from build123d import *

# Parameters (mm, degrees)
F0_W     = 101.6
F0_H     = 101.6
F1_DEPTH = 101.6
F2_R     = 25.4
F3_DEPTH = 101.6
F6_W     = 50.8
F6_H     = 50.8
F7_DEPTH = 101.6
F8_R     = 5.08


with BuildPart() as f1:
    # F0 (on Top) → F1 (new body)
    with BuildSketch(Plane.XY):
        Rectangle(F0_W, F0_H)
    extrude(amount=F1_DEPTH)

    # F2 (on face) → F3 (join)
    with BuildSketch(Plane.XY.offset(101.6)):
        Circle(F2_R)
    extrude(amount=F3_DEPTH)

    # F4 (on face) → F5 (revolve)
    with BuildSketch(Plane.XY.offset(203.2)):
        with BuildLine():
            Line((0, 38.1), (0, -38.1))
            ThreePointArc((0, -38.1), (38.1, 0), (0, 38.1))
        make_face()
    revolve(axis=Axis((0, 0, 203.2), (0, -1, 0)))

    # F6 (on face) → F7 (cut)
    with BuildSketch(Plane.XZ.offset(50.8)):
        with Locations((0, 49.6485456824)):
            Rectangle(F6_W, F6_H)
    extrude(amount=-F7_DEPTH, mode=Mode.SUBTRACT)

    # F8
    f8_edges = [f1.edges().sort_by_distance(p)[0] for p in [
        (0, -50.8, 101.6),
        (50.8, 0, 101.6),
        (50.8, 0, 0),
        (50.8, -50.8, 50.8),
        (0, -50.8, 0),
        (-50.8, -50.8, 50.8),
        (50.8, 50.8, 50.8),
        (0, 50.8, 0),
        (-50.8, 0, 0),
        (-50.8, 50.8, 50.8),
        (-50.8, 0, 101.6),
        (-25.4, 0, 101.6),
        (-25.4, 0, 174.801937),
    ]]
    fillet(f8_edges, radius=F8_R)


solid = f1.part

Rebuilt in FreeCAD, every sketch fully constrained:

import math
import FreeCAD as App
import Part
import Sketcher
from FreeCAD import Vector
Q = App.Units.Quantity


def edges_at(feature, points):
    """Names of the edges that pass closest to the given points."""
    edges = feature.Shape.Edges
    near = lambda p: min(range(len(edges)), key=lambda i: edges[i].distToShape(Part.Vertex(*p))[0])
    return sorted({f"Edge{near(p) + 1}" for p in points})


def add_polygon(sketch, points):
    """Adds a closed chain of lines whose ends are joined by coincident constraints."""
    first, n = sketch.GeometryCount, len(points)
    for a, b in zip(points, points[1:] + points[:1]):
        sketch.addGeometry(Part.LineSegment(App.Vector(*a, 0), App.Vector(*b, 0)), False)
    for i in range(n):
        sketch.addConstraint(Sketcher.Constraint("Coincident", first + i, 2, first + (i + 1) % n, 1))

doc = App.newDocument("Part")
body = doc.addObject("PartDesign::Body", "Body")

# Sketch on XY plane
sketch1 = body.newObject("Sketcher::SketchObject", "Sketch")
sketch1.AttachmentSupport = (doc.getObject("XY_Plane"), [""])
sketch1.MapMode = "FlatFace"
add_polygon(sketch1, [(-50.8, 50.8), (-50.8, -50.8), (50.8, -50.8), (50.8, 50.8)])  # lines 0-3
sketch1.addConstraint([
    Sketcher.Constraint("Vertical", 0),
    Sketcher.Constraint("Horizontal", 1),
    Sketcher.Constraint("Vertical", 2),
    Sketcher.Constraint("Horizontal", 3),
    Sketcher.Constraint("Symmetric", 0, 2, 2, 2, -1, 1),
    Sketcher.Constraint("Equal", 3, 0),
    Sketcher.Constraint("DistanceX", 1, 1, 1, 2, Q("4 in")),
])
pad1 = body.newObject("PartDesign::Pad", "Pad")
pad1.Profile = sketch1
pad1.Length = Q("4 in")

# Sketch on XY plane
sketch2 = body.newObject("Sketcher::SketchObject", "Sketch001")
sketch2.AttachmentSupport = (doc.getObject("XY_Plane"), [""])
sketch2.MapMode = "FlatFace"
sketch2.AttachmentOffset = App.Placement(Vector(0, 0, 4 * 25.4), App.Rotation())
sketch2.addGeometry(Part.Circle(Vector(0, 0, 0), Vector(0, 0, 1), 25.4), False)
sketch2.addConstraint([
    Sketcher.Constraint("Coincident", 0, 3, -1, 1),
    Sketcher.Constraint("Diameter", 0, Q("2 in")),
])
pad2 = body.newObject("PartDesign::Pad", "Pad001")
pad2.Profile = sketch2
pad2.Length = Q("4 in")

# Sketch on XY plane
sketch3 = body.newObject("Sketcher::SketchObject", "Sketch002")
sketch3.AttachmentSupport = (doc.getObject("XY_Plane"), [""])
sketch3.MapMode = "FlatFace"
sketch3.AttachmentOffset = App.Placement(Vector(0, 0, 8 * 25.4), App.Rotation())
sketch3.addGeometry([
    Part.LineSegment(Vector(0, 38.1, 0), Vector(0, -38.1, 0)),
    Part.ArcOfCircle(Part.Circle(Vector(0, 0, 0), Vector(0, 0, 1), 38.1), math.radians(-90), math.radians(90)),
], False)
sketch3.addConstraint([
    Sketcher.Constraint("Coincident", 0, 1, 1, 2),
    Sketcher.Constraint("Coincident", 1, 1, 0, 2),
    Sketcher.Constraint("Vertical", 0),
    Sketcher.Constraint("Coincident", 1, 3, -1, 1),
    Sketcher.Constraint("PointOnObject", 0, 1, -2),
    Sketcher.Constraint("Radius", 1, Q("1.5 in")),
])
revolution = body.newObject("PartDesign::Revolution", "Revolution")
revolution.Profile = sketch3
revolution.ReferenceAxis = (sketch3, ["V_Axis"])
revolution.Angle = 360

# Sketch on XZ plane
sketch4 = body.newObject("Sketcher::SketchObject", "Sketch003")
sketch4.AttachmentSupport = (doc.getObject("XZ_Plane"), [""])
sketch4.MapMode = "FlatFace"
sketch4.AttachmentOffset = App.Placement(Vector(0, 0, 2 * 25.4), App.Rotation())
add_polygon(sketch4, [(-25.4, 75.048546), (-25.4, 24.248546), (25.4, 24.248546), (25.4, 75.048546)])  # lines 0-3
sketch4.addConstraint([
    Sketcher.Constraint("Vertical", 0),
    Sketcher.Constraint("Horizontal", 1),
    Sketcher.Constraint("Vertical", 2),
    Sketcher.Constraint("Horizontal", 3),
    Sketcher.Constraint("Equal", 3, 0),
    Sketcher.Constraint("DistanceX", 1, 1, 1, 2, Q("2 in")),
    Sketcher.Constraint("DistanceX", 0, 2, -1, 1, Q("1 in")),
    Sketcher.Constraint("DistanceY", -1, 1, 0, 2, Q("24.248546 mm")),
])
pocket1 = body.newObject("PartDesign::Pocket", "Pocket")
pocket1.Profile = sketch4
pocket1.Length = Q("4 in")
doc.recompute()

fillet = body.newObject("PartDesign::Fillet", "Fillet")
fillet.Base = (pocket1, edges_at(pocket1, [
    (0, -50.8, 101.6),
    (50.8, 0, 101.6),
    (50.8, 0, 0),
    (50.8, -50.8, 50.8),
    (0, -50.8, 0),
    (-50.8, -50.8, 50.8),
    (50.8, 50.8, 50.8),
    (0, 50.8, 0),
    (-50.8, 0, 0),
    (-50.8, 50.8, 50.8),
    (-50.8, 0, 101.6),
    (-25.4, 0, 101.6),
    (-25.4, 0, 174.802),
]))
fillet.Radius = Q("0.2 in")

doc.recompute()
